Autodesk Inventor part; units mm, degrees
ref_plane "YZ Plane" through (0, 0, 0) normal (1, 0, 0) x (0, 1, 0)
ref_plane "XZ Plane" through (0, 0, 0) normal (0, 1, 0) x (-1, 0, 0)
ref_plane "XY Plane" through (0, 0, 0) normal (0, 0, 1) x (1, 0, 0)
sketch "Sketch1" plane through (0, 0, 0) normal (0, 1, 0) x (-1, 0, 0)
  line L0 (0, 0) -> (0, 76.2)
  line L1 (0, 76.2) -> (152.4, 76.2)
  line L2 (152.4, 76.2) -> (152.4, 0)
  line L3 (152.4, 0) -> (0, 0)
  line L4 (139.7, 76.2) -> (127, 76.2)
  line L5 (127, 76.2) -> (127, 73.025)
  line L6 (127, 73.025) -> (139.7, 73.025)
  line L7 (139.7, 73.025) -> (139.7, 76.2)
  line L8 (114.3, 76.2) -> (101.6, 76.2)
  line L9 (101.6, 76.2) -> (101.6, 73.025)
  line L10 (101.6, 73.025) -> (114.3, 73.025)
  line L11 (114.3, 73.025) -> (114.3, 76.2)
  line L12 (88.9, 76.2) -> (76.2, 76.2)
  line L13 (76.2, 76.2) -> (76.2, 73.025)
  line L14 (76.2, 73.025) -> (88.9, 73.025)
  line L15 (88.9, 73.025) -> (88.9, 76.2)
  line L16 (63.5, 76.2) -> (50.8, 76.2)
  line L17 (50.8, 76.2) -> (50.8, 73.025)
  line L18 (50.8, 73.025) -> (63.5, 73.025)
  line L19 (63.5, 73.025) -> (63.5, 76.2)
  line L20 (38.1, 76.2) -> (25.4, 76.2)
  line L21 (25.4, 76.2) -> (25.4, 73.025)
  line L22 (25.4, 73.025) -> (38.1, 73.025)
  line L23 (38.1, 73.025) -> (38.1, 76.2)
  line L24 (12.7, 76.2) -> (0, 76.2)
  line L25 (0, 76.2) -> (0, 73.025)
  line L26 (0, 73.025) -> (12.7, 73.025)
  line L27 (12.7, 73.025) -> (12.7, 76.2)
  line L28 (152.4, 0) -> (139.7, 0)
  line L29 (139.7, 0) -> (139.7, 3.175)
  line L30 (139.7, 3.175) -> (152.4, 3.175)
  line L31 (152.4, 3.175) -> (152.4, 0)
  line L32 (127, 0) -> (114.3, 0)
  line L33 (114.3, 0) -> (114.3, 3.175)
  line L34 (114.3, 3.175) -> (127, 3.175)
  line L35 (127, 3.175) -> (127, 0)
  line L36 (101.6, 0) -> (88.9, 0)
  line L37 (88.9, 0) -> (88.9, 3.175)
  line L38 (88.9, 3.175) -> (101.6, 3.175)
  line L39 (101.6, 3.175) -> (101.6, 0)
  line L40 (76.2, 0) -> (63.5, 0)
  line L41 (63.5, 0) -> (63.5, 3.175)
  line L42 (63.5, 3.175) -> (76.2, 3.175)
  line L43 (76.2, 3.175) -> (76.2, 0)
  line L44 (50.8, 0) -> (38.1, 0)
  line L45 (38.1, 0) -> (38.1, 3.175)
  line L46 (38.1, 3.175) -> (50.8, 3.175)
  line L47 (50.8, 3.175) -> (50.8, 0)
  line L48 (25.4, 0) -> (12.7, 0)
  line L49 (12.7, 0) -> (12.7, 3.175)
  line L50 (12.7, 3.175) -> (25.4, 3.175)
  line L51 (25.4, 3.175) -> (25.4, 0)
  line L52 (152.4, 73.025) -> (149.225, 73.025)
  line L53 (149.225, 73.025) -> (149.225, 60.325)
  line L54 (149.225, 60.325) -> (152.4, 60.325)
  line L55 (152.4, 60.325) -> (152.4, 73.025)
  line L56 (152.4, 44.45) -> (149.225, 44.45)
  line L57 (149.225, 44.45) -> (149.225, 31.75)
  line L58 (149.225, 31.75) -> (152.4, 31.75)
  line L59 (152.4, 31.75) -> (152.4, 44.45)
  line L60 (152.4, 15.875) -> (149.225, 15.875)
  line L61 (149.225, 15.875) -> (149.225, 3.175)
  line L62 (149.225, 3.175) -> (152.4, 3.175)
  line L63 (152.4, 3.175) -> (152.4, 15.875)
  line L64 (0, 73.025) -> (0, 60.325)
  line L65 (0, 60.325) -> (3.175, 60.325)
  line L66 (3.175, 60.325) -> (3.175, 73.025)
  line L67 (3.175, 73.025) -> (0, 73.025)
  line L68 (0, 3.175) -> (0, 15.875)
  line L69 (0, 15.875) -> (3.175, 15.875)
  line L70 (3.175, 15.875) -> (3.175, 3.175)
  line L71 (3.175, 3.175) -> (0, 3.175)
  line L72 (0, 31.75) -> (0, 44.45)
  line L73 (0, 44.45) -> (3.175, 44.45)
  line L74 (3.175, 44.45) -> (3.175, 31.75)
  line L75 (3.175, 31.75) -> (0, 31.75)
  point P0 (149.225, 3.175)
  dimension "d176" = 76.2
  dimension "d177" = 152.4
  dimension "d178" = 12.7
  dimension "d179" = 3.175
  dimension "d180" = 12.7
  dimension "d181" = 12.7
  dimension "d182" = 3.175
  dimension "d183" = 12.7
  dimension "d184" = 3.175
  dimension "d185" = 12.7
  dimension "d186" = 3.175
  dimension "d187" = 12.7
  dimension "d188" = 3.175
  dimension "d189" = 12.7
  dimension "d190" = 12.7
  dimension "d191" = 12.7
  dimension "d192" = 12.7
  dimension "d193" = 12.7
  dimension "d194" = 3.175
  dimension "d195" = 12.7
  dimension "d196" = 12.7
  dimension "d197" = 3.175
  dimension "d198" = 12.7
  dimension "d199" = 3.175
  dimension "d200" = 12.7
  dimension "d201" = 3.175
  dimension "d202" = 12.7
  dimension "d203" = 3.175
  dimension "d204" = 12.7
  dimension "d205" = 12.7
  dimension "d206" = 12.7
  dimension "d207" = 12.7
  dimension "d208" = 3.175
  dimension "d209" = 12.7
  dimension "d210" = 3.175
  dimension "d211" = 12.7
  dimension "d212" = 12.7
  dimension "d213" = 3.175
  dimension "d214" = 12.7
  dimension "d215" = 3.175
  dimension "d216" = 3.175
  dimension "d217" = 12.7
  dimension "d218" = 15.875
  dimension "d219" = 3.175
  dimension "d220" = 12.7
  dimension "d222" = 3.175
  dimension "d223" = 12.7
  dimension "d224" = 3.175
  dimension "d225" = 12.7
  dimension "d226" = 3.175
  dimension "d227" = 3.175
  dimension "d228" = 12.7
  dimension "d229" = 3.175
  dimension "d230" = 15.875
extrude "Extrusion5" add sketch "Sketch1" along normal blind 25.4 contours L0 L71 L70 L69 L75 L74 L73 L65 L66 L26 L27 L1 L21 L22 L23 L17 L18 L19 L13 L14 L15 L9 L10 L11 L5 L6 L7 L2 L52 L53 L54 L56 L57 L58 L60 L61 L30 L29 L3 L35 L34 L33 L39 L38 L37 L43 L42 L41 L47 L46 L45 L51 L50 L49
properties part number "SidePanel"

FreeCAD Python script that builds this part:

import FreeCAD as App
import Part
import Sketcher
from FreeCAD import Vector
Q = App.Units.Quantity


def add_polygon(sketch, points):
    """Adds a closed chain of lines whose ends are joined by coincident constraints."""
    first, n = sketch.GeometryCount, len(points)
    for a, b in zip(points, points[1:] + points[:1]):
        sketch.addGeometry(Part.LineSegment(App.Vector(*a, 0), App.Vector(*b, 0)), False)
    for i in range(n):
        sketch.addConstraint(Sketcher.Constraint("Coincident", first + i, 2, first + (i + 1) % n, 1))

doc = App.newDocument("Part")
body = doc.addObject("PartDesign::Body", "Body")

sketch1 = body.newObject("Sketcher::SketchObject", "Sketch")
sketch1.AttachmentSupport = (doc.getObject("XZ_Plane"), [""])
sketch1.MapMode = "FlatFace"
add_polygon(sketch1, [(0, 3.2), (0, 0), (-12.7, 0), (-12.7, 3.2), (-25.4, 3.2), (-25.4, 0), (-38.1, 0), (-38.1, 3.2), (-50.8, 3.2), (-50.8, 0), (-63.5, 0), (-63.5, 3.2), (-76.2, 3.2), (-76.2, 0), (-88.9, 0), (-88.9, 3.2), (-101.6, 3.2), (-101.6, 0), (-114.3, 0), (-114.3, 3.2), (-127, 3.2), (-127, 0), (-139.7, 0), (-139.7, 3.2), (-149.2, 3.2), (-149.2, 15.9), (-152.4, 15.9), (-152.4, 31.8), (-149.2, 31.8), (-149.2, 44.5), (-152.4, 44.5), (-152.4, 60.3), (-149.2, 60.3), (-149.2, 73), (-152.4, 73), (-152.4, 76.2), (-139.7, 76.2), (-139.7, 73), (-127, 73), (-127, 76.2), (-114.3, 76.2), (-114.3, 73), (-101.6, 73), (-101.6, 76.2), (-88.9, 76.2), (-88.9, 73), (-76.2, 73), (-76.2, 76.2), (-63.5, 76.2), (-63.5, 73), (-50.8, 73), (-50.8, 76.2), (-38.1, 76.2), (-38.1, 73), (-25.4, 73), (-25.4, 76.2), (-12.7, 76.2), (-12.7, 73), (-3.2, 73), (-3.2, 60.3), (0, 60.3), (0, 44.5), (-3.2, 44.5), (-3.2, 31.8), (0, 31.8), (0, 15.9), (-3.2, 15.9), (-3.2, 3.2)])
sketch1.addConstraint([
    Sketcher.Constraint("Vertical", 0),
    Sketcher.Constraint("Horizontal", 1),
    Sketcher.Constraint("Vertical", 2),
    Sketcher.Constraint("Horizontal", 3),
    Sketcher.Constraint("Vertical", 4),
    Sketcher.Constraint("Horizontal", 5),
    Sketcher.Constraint("Vertical", 6),
    Sketcher.Constraint("Horizontal", 7),
    Sketcher.Constraint("Vertical", 8),
    Sketcher.Constraint("Horizontal", 9),
    Sketcher.Constraint("Vertical", 10),
    Sketcher.Constraint("Horizontal", 11),
    Sketcher.Constraint("Vertical", 12),
    Sketcher.Constraint("Horizontal", 13),
    Sketcher.Constraint("Vertical", 14),
    Sketcher.Constraint("Horizontal", 15),
    Sketcher.Constraint("Vertical", 16),
    Sketcher.Constraint("Horizontal", 17),
    Sketcher.Constraint("Vertical", 18),
    Sketcher.Constraint("Horizontal", 19),
    Sketcher.Constraint("Vertical", 20),
    Sketcher.Constraint("Horizontal", 21),
    Sketcher.Constraint("Vertical", 22),
    Sketcher.Constraint("Horizontal", 23),
    Sketcher.Constraint("Vertical", 24),
    Sketcher.Constraint("Horizontal", 25),
    Sketcher.Constraint("Vertical", 26),
    Sketcher.Constraint("Horizontal", 27),
    Sketcher.Constraint("Vertical", 28),
    Sketcher.Constraint("Horizontal", 29),
    Sketcher.Constraint("Vertical", 30),
    Sketcher.Constraint("Horizontal", 31),
    Sketcher.Constraint("Vertical", 32),
    Sketcher.Constraint("Horizontal", 33),
    Sketcher.Constraint("Vertical", 34),
    Sketcher.Constraint("Horizontal", 35),
    Sketcher.Constraint("Vertical", 36),
    Sketcher.Constraint("Horizontal", 37),
    Sketcher.Constraint("Vertical", 38),
    Sketcher.Constraint("Horizontal", 39),
    Sketcher.Constraint("Vertical", 40),
    Sketcher.Constraint("Horizontal", 41),
    Sketcher.Constraint("Vertical", 42),
    Sketcher.Constraint("Horizontal", 43),
    Sketcher.Constraint("Vertical", 44),
    Sketcher.Constraint("Horizontal", 45),
    Sketcher.Constraint("Vertical", 46),
    Sketcher.Constraint("Horizontal", 47),
    Sketcher.Constraint("Vertical", 48),
    Sketcher.Constraint("Horizontal", 49),
    Sketcher.Constraint("Vertical", 50),
    Sketcher.Constraint("Horizontal", 51),
    Sketcher.Constraint("Vertical", 52),
    Sketcher.Constraint("Horizontal", 53),
    Sketcher.Constraint("Vertical", 54),
    Sketcher.Constraint("Horizontal", 55),
    Sketcher.Constraint("Vertical", 56),
    Sketcher.Constraint("Horizontal", 57),
    Sketcher.Constraint("Vertical", 58),
    Sketcher.Constraint("Horizontal", 59),
    Sketcher.Constraint("Vertical", 60),
    Sketcher.Constraint("Horizontal", 61),
    Sketcher.Constraint("Vertical", 62),
    Sketcher.Constraint("Horizontal", 63),
    Sketcher.Constraint("Vertical", 64),
    Sketcher.Constraint("Horizontal", 65),
    Sketcher.Constraint("Vertical", 66),
    Sketcher.Constraint("Horizontal", 67),
    Sketcher.Constraint("Coincident", 0, 2, -1, 1),
    Sketcher.Constraint("PointOnObject", 4, 2, -1),
    Sketcher.Constraint("PointOnObject", 8, 2, -1),
    Sketcher.Constraint("PointOnObject", 12, 2, -1),
    Sketcher.Constraint("PointOnObject", 16, 2, -1),
    Sketcher.Constraint("PointOnObject", 20, 2, -1),
    Sketcher.Constraint("PointOnObject", 59, 2, -2),
    Sketcher.Constraint("PointOnObject", 63, 2, -2),
    Sketcher.Constraint("Horizontal", 3, 2, 6, 2),
    Sketcher.Constraint("Horizontal", 7, 2, 10, 2),
    Sketcher.Constraint("Horizontal", 11, 2, 14, 2),
    Sketcher.Constraint("Horizontal", 15, 2, 18, 2),
    Sketcher.Constraint("Horizontal", 19, 2, 22, 2),
    Sketcher.Constraint("Horizontal", 33, 2, 36, 2),
    Sketcher.Constraint("Horizontal", 35, 2, 38, 2),
    Sketcher.Constraint("Horizontal", 37, 2, 40, 2),
    Sketcher.Constraint("Horizontal", 39, 2, 42, 2),
    Sketcher.Constraint("Horizontal", 41, 2, 44, 2),
    Sketcher.Constraint("Horizontal", 43, 2, 46, 2),
    Sketcher.Constraint("Horizontal", 45, 2, 48, 2),
    Sketcher.Constraint("Horizontal", 47, 2, 50, 2),
    Sketcher.Constraint("Horizontal", 49, 2, 52, 2),
    Sketcher.Constraint("Horizontal", 51, 2, 54, 2),
    Sketcher.Constraint("Horizontal", 53, 2, 56, 2),
    Sketcher.Constraint("Horizontal", 31, 2, 58, 2),
    Sketcher.Constraint("Horizontal", 29, 2, 60, 2),
    Sketcher.Constraint("Horizontal", 27, 2, 62, 2),
    Sketcher.Constraint("Horizontal", 25, 2, 64, 2),
    Sketcher.Constraint("Horizontal", 23, 2, 66, 2),
    Sketcher.Constraint("Vertical", 24, 2, 27, 2),
    Sketcher.Constraint("Vertical", 26, 2, 29, 2),
    Sketcher.Constraint("Vertical", 28, 2, 31, 2),
    Sketcher.Constraint("Vertical", 30, 2, 33, 2),
    Sketcher.Constraint("Vertical", 22, 2, 35, 2),
    Sketcher.Constraint("Vertical", 20, 2, 37, 2),
    Sketcher.Constraint("Vertical", 18, 2, 39, 2),
    Sketcher.Constraint("Vertical", 16, 2, 41, 2),
    Sketcher.Constraint("Vertical", 14, 2, 43, 2),
    Sketcher.Constraint("Vertical", 12, 2, 45, 2),
    Sketcher.Constraint("Vertical", 10, 2, 47, 2),
    Sketcher.Constraint("Vertical", 8, 2, 49, 2),
    Sketcher.Constraint("Vertical", 6, 2, 51, 2),
    Sketcher.Constraint("Vertical", 4, 2, 53, 2),
    Sketcher.Constraint("Vertical", 2, 2, 55, 2),
    Sketcher.Constraint("Vertical", 58, 2, 61, 2),
    Sketcher.Constraint("Vertical", 62, 2, 65, 2),
    Sketcher.Constraint("Equal", 1, 3),
    Sketcher.Constraint("Equal", 3, 5),
    Sketcher.Constraint("Equal", 5, 7),
    Sketcher.Constraint("Equal", 7, 9),
    Sketcher.Constraint("Equal", 9, 11),
    Sketcher.Constraint("Equal", 11, 13),
    Sketcher.Constraint("Equal", 13, 15),
    Sketcher.Constraint("Equal", 15, 17),
    Sketcher.Constraint("Equal", 17, 19),
    Sketcher.Constraint("Equal", 19, 21),
    Sketcher.Constraint("Equal", 21, 35),
    Sketcher.Constraint("Equal", 23, 57),
    Sketcher.Constraint("Equal", 67, 0),
    Sketcher.Constraint("Equal", 55, 24),
    Sketcher.Constraint("Equal", 24, 28),
    Sketcher.Constraint("Equal", 26, 30),
    Sketcher.Constraint("Equal", 28, 32),
    Sketcher.Constraint("Equal", 22, 34),
    Sketcher.Constraint("DistanceX", 1, 2, 1, 1, Q("0.5 in")),
    Sketcher.Constraint("DistanceY", -1, 1, 34, 2, Q("3 in")),
    Sketcher.Constraint("DistanceX", 25, 2, 25, 1, Q("0.125 in")),
])
pad1 = body.newObject("PartDesign::Pad", "Pad")
pad1.Profile = sketch1
pad1.Length = Q("1 in")
pad1.Reversed = True

doc.recompute()
